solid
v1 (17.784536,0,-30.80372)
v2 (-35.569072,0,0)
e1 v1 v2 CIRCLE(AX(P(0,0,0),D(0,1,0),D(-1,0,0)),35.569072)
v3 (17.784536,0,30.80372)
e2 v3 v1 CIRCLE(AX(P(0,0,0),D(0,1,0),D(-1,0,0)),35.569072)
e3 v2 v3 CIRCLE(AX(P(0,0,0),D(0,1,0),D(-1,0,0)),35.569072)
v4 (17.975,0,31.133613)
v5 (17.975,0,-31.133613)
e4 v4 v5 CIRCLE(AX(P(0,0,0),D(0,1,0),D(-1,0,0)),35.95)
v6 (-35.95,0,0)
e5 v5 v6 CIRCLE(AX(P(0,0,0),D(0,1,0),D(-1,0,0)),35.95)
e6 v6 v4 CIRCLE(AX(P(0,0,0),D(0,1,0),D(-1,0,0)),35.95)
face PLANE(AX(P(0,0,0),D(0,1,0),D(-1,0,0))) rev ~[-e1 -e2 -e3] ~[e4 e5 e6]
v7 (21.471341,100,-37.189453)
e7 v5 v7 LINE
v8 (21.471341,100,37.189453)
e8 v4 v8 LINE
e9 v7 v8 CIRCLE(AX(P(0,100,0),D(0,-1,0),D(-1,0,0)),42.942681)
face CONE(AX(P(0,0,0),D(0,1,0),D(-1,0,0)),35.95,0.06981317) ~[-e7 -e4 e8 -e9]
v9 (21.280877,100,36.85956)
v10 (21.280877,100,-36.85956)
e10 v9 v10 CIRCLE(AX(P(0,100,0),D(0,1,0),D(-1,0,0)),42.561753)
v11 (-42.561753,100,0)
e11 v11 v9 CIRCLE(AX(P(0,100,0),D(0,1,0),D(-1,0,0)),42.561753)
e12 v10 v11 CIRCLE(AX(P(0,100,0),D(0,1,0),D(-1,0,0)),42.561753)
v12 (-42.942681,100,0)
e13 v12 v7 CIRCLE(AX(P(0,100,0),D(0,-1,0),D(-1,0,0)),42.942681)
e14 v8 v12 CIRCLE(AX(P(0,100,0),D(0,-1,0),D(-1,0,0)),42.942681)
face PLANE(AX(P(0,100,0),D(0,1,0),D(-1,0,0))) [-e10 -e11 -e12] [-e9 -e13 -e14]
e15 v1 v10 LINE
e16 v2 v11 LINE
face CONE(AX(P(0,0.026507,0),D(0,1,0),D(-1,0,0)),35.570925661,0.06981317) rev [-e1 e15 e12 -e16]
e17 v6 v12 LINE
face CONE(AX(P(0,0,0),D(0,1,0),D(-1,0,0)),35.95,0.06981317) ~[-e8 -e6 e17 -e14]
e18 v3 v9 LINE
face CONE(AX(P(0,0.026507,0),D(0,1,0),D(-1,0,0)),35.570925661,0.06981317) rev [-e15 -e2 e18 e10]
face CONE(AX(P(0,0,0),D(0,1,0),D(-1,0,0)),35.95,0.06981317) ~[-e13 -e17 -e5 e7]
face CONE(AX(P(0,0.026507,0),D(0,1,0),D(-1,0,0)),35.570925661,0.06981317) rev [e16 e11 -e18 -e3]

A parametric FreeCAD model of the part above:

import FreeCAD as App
import Part
import Sketcher
from FreeCAD import Vector
Q = App.Units.Quantity


def faces_at(feature, points):
    """Names of the faces that lie closest to the given points."""
    faces = feature.Shape.Faces
    near = lambda p: min(range(len(faces)), key=lambda i: faces[i].distToShape(Part.Vertex(*p))[0])
    return sorted({f"Face{near(p) + 1}" for p in points})

doc = App.newDocument("Part")
params = doc.addObject("Spreadsheet::Sheet", "Params")
for row, (alias, value) in enumerate([
    ("pad1_length", "3.9370079 in"),
    ("pad1_taper", "4 deg"),
    ("thickness_wall", "0.38 mm"),
], start=1):
    params.set(f"A{row}", alias)
    params.set(f"B{row}", "=" + value)
    params.setAlias(f"B{row}", alias)

body = doc.addObject("PartDesign::Body", "Body")

# Sketch on XZ plane
sketch1 = body.newObject("Sketcher::SketchObject", "Sketch")
sketch1.AttachmentSupport = (doc.getObject("XZ_Plane"), [""])
sketch1.MapMode = "FlatFace"
sketch1.addGeometry(Part.Circle(Vector(0, 0, 0), Vector(0, 0, 1), 36), False)
sketch1.addConstraint(Sketcher.Constraint("Coincident", 0, 3, -1, 1))
sketch1.addConstraint(Sketcher.Constraint("Diameter", 0, Q("2.8307 in")))
pad1 = body.newObject("PartDesign::Pad", "Pad")
pad1.Profile = sketch1
pad1.setExpression("Length", "Params.pad1_length")
pad1.Reversed = True
pad1.setExpression("TaperAngle", "Params.pad1_taper")
doc.recompute()

thickness = body.newObject("PartDesign::Thickness", "Thickness")
thickness.Base = (pad1, faces_at(pad1, [(-10.875, 0, 11.48), (5.348, 100, -16.46)]))
thickness.setExpression("Value", "Params.thickness_wall")
thickness.Reversed = True
thickness.Join = "Intersection"

doc.recompute()
